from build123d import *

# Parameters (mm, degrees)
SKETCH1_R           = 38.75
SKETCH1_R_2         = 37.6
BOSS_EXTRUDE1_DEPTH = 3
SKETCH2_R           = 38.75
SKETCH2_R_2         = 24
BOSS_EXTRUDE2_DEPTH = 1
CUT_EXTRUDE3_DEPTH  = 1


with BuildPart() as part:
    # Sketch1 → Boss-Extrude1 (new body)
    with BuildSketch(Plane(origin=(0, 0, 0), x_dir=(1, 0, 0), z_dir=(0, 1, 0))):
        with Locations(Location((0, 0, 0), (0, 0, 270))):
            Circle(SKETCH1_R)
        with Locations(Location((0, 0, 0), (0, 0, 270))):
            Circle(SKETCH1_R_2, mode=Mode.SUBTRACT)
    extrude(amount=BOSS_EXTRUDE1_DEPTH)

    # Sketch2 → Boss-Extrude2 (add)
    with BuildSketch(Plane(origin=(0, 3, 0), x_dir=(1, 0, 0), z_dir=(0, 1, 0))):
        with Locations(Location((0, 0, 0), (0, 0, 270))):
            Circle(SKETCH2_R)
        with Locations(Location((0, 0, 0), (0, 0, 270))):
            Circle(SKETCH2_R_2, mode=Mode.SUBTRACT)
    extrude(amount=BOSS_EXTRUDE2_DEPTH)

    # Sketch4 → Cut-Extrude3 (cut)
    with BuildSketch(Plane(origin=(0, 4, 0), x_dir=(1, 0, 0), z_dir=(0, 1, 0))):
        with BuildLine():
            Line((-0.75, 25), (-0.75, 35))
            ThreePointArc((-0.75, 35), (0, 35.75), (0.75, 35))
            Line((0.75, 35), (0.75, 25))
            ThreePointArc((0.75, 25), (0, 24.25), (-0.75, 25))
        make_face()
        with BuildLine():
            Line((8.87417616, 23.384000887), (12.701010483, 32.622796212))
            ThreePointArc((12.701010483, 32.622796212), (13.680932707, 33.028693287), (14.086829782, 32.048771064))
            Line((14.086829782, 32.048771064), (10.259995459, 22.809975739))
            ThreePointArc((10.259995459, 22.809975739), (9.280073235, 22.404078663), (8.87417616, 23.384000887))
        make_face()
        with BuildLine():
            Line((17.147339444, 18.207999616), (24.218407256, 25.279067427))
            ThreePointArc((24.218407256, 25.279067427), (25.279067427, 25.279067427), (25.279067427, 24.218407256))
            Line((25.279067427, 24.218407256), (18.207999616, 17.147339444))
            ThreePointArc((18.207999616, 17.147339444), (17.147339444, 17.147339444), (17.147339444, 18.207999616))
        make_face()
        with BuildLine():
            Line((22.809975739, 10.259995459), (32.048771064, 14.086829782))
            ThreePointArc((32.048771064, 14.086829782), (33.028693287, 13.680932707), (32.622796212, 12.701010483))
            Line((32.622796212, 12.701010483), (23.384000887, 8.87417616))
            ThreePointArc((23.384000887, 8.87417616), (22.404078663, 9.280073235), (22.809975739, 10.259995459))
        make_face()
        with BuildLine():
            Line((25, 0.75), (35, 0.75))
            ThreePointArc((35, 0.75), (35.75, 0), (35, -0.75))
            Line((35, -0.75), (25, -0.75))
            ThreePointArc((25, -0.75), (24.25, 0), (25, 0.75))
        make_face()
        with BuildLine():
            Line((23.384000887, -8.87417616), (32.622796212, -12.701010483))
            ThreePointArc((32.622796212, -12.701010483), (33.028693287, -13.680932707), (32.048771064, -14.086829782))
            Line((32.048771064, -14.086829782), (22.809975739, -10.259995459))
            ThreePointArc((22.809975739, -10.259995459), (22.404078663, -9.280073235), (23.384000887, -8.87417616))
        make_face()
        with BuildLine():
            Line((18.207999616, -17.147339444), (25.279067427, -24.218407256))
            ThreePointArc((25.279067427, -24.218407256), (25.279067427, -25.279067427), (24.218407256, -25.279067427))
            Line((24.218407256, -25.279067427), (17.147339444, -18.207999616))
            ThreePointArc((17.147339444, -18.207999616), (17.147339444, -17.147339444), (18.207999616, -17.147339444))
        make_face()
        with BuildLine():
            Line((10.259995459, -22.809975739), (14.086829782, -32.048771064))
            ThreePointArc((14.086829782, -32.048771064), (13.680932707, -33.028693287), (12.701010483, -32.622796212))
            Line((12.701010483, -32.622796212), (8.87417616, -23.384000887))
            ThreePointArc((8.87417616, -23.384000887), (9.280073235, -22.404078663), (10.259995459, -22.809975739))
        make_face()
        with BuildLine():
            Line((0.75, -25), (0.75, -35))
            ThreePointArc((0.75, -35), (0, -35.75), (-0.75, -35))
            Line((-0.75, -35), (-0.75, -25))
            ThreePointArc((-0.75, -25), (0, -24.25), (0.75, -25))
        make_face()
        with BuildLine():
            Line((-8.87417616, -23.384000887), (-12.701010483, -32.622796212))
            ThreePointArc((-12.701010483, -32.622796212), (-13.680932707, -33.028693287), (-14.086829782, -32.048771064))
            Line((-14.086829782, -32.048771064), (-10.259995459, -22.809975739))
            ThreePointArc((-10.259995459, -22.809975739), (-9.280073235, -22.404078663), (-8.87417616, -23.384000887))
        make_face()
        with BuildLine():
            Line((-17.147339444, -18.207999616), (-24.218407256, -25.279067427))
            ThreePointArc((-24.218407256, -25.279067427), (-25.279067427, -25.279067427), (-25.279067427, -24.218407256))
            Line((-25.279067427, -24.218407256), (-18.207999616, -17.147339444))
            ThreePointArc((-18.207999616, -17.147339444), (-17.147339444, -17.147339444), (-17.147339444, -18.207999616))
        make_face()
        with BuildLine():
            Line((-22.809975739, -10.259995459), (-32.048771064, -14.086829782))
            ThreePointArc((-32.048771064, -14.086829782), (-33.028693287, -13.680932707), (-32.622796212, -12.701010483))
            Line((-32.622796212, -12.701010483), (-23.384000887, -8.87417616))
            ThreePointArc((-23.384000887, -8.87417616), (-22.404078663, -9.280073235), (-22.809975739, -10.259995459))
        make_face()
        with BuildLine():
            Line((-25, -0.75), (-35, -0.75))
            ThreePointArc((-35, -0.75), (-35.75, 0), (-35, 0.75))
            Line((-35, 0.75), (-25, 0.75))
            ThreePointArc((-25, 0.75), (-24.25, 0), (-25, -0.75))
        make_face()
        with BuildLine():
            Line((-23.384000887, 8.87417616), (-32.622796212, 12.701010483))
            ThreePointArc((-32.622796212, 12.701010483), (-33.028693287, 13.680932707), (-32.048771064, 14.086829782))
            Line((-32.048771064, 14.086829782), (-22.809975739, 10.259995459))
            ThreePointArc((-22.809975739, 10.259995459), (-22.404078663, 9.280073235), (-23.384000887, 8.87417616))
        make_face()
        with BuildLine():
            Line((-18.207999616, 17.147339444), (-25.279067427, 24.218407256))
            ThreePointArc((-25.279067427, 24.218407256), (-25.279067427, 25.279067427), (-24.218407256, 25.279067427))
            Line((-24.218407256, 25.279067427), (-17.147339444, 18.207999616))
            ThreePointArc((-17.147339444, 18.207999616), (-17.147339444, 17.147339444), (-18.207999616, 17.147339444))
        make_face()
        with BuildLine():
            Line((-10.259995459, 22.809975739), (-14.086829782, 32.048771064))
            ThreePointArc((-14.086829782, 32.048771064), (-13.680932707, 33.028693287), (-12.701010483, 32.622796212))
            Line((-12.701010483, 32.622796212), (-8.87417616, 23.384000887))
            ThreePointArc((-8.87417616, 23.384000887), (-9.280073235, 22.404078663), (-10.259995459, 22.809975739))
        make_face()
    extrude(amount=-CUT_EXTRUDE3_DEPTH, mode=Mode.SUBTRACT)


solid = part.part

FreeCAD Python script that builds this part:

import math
import FreeCAD as App
import Part
import Sketcher

V = App.Vector
Q = App.Units.Quantity

doc = App.newDocument("Part")
body = doc.addObject("PartDesign::Body", "Body")

sketch1 = body.newObject("Sketcher::SketchObject", "Sketch")
sketch1.AttachmentSupport = (doc.getObject("XZ_Plane"), [""])
sketch1.MapMode = "FlatFace"
sketch1.addGeometry(Part.Circle(V(0, 0, 0), V(0, 0, 1), 38.75), False)
sketch1.addGeometry(Part.Circle(V(0, 0, 0), V(0, 0, 1), 37.6), False)
sketch1.addConstraint(Sketcher.Constraint("Coincident", 0, 3, -1, 1))
sketch1.addConstraint(Sketcher.Constraint("Coincident", 1, 3, -1, 1))
sketch1.addConstraint(Sketcher.Constraint("Diameter", 0, 77.5))
sketch1.addConstraint(Sketcher.Constraint("Diameter", 1, 75.2))
pad1 = body.newObject("PartDesign::Pad", "Pad")
pad1.Profile = sketch1
pad1.Length = 3
pad1.Reversed = True

sketch2 = body.newObject("Sketcher::SketchObject", "Sketch001")
sketch2.AttachmentSupport = (doc.getObject("XZ_Plane"), [""])
sketch2.MapMode = "FlatFace"
sketch2.AttachmentOffset = App.Placement(V(0, 0, -3), App.Rotation())
sketch2.addGeometry(Part.Circle(V(0, 0, 0), V(0, 0, 1), 38.75), False)
sketch2.addGeometry(Part.Circle(V(0, 0, 0), V(0, 0, 1), 24), False)
sketch2.addConstraint(Sketcher.Constraint("Coincident", 0, 3, -1, 1))
sketch2.addConstraint(Sketcher.Constraint("Coincident", 1, 3, -1, 1))
sketch2.addConstraint(Sketcher.Constraint("Diameter", 1, 48.0))
sketch2.addConstraint(Sketcher.Constraint("Diameter", 0, 77.5))
pad2 = body.newObject("PartDesign::Pad", "Pad001")
pad2.Profile = sketch2
pad2.Length = 1
pad2.Reversed = True

sketch3 = body.newObject("Sketcher::SketchObject", "Sketch002")
sketch3.AttachmentSupport = (doc.getObject("XZ_Plane"), [""])
sketch3.MapMode = "FlatFace"
sketch3.AttachmentOffset = App.Placement(V(0, 0, -4), App.Rotation())
sketch3.addGeometry(Part.LineSegment(V(-0.75, -35, 0), V(-0.75, -25, 0)), False)
sketch3.addGeometry(Part.ArcOfCircle(Part.Circle(V(0, -25, 0), V(0, 0, 1), 0.75), math.radians(0), math.radians(180)), False)
sketch3.addGeometry(Part.LineSegment(V(0.75, -25, 0), V(0.75, -35, 0)), False)
sketch3.addGeometry(Part.ArcOfCircle(Part.Circle(V(0, -35, 0), V(0, 0, 1), 0.75), math.radians(180), math.radians(360)), False)
sketch3.addGeometry(Part.LineSegment(V(12.70101, -32.622796, 0), V(8.874176, -23.384001, 0)), False)
sketch3.addGeometry(Part.ArcOfCircle(Part.Circle(V(9.567086, -23.096988, 0), V(0, 0, 1), 0.75), math.radians(22.5), math.radians(202.5)), False)
sketch3.addGeometry(Part.LineSegment(V(10.259995, -22.809976, 0), V(14.08683, -32.048771, 0)), False)
sketch3.addGeometry(Part.ArcOfCircle(Part.Circle(V(13.39392, -32.335784, 0), V(0, 0, 1), 0.75), math.radians(-157.5), math.radians(22.5)), False)
sketch3.addGeometry(Part.LineSegment(V(24.218407, -25.279067, 0), V(17.147339, -18.208, 0)), False)
sketch3.addGeometry(Part.ArcOfCircle(Part.Circle(V(17.67767, -17.67767, 0), V(0, 0, 1), 0.75), math.radians(45), math.radians(225)), False)
sketch3.addGeometry(Part.LineSegment(V(18.208, -17.147339, 0), V(25.279067, -24.218407, 0)), False)
sketch3.addGeometry(Part.ArcOfCircle(Part.Circle(V(24.748737, -24.748737, 0), V(0, 0, 1), 0.75), math.radians(-135), math.radians(45)), False)
sketch3.addGeometry(Part.LineSegment(V(32.048771, -14.08683, 0), V(22.809976, -10.259995, 0)), False)
sketch3.addGeometry(Part.ArcOfCircle(Part.Circle(V(23.096988, -9.567086, 0), V(0, 0, 1), 0.75), math.radians(67.5), math.radians(247.5)), False)
sketch3.addGeometry(Part.LineSegment(V(23.384001, -8.874176, 0), V(32.622796, -12.70101, 0)), False)
sketch3.addGeometry(Part.ArcOfCircle(Part.Circle(V(32.335784, -13.39392, 0), V(0, 0, 1), 0.75), math.radians(-112.5), math.radians(67.5)), False)
sketch3.addGeometry(Part.LineSegment(V(35, -0.75, 0), V(25, -0.75, 0)), False)
sketch3.addGeometry(Part.ArcOfCircle(Part.Circle(V(25, 0, 0), V(0, 0, 1), 0.75), math.radians(90), math.radians(270)), False)
sketch3.addGeometry(Part.LineSegment(V(25, 0.75, 0), V(35, 0.75, 0)), False)
sketch3.addGeometry(Part.ArcOfCircle(Part.Circle(V(35, 0, 0), V(0, 0, 1), 0.75), math.radians(-90), math.radians(90)), False)
sketch3.addGeometry(Part.LineSegment(V(32.622796, 12.70101, 0), V(23.384001, 8.874176, 0)), False)
sketch3.addGeometry(Part.ArcOfCircle(Part.Circle(V(23.096988, 9.567086, 0), V(0, 0, 1), 0.75), math.radians(112.5), math.radians(292.5)), False)
sketch3.addGeometry(Part.LineSegment(V(22.809976, 10.259995, 0), V(32.048771, 14.08683, 0)), False)
sketch3.addGeometry(Part.ArcOfCircle(Part.Circle(V(32.335784, 13.39392, 0), V(0, 0, 1), 0.75), math.radians(-67.5), math.radians(112.5)), False)
sketch3.addGeometry(Part.LineSegment(V(25.279067, 24.218407, 0), V(18.208, 17.147339, 0)), False)
sketch3.addGeometry(Part.ArcOfCircle(Part.Circle(V(17.67767, 17.67767, 0), V(0, 0, 1), 0.75), math.radians(135), math.radians(315)), False)
sketch3.addGeometry(Part.LineSegment(V(17.147339, 18.208, 0), V(24.218407, 25.279067, 0)), False)
sketch3.addGeometry(Part.ArcOfCircle(Part.Circle(V(24.748737, 24.748737, 0), V(0, 0, 1), 0.75), math.radians(-45), math.radians(135)), False)
sketch3.addGeometry(Part.LineSegment(V(14.08683, 32.048771, 0), V(10.259995, 22.809976, 0)), False)
sketch3.addGeometry(Part.ArcOfCircle(Part.Circle(V(9.567086, 23.096988, 0), V(0, 0, 1), 0.75), math.radians(157.5), math.radians(337.5)), False)
sketch3.addGeometry(Part.LineSegment(V(8.874176, 23.384001, 0), V(12.70101, 32.622796, 0)), False)
sketch3.addGeometry(Part.ArcOfCircle(Part.Circle(V(13.39392, 32.335784, 0), V(0, 0, 1), 0.75), math.radians(-22.5), math.radians(157.5)), False)
sketch3.addGeometry(Part.LineSegment(V(0.75, 35, 0), V(0.75, 25, 0)), False)
sketch3.addGeometry(Part.ArcOfCircle(Part.Circle(V(0, 25, 0), V(0, 0, 1), 0.75), math.radians(180), math.radians(360)), False)
sketch3.addGeometry(Part.LineSegment(V(-0.75, 25, 0), V(-0.75, 35, 0)), False)
sketch3.addGeometry(Part.ArcOfCircle(Part.Circle(V(0, 35, 0), V(0, 0, 1), 0.75), math.radians(0), math.radians(180)), False)
sketch3.addGeometry(Part.LineSegment(V(-12.70101, 32.622796, 0), V(-8.874176, 23.384001, 0)), False)
sketch3.addGeometry(Part.ArcOfCircle(Part.Circle(V(-9.567086, 23.096988, 0), V(0, 0, 1), 0.75), math.radians(-157.5), math.radians(22.5)), False)
sketch3.addGeometry(Part.LineSegment(V(-10.259995, 22.809976, 0), V(-14.08683, 32.048771, 0)), False)
sketch3.addGeometry(Part.ArcOfCircle(Part.Circle(V(-13.39392, 32.335784, 0), V(0, 0, 1), 0.75), math.radians(22.5), math.radians(202.5)), False)
sketch3.addGeometry(Part.LineSegment(V(-24.218407, 25.279067, 0), V(-17.147339, 18.208, 0)), False)
sketch3.addGeometry(Part.ArcOfCircle(Part.Circle(V(-17.67767, 17.67767, 0), V(0, 0, 1), 0.75), math.radians(-135), math.radians(45)), False)
sketch3.addGeometry(Part.LineSegment(V(-18.208, 17.147339, 0), V(-25.279067, 24.218407, 0)), False)
sketch3.addGeometry(Part.ArcOfCircle(Part.Circle(V(-24.748737, 24.748737, 0), V(0, 0, 1), 0.75), math.radians(45), math.radians(225)), False)
sketch3.addGeometry(Part.LineSegment(V(-32.048771, 14.08683, 0), V(-22.809976, 10.259995, 0)), False)
sketch3.addGeometry(Part.ArcOfCircle(Part.Circle(V(-23.096988, 9.567086, 0), V(0, 0, 1), 0.75), math.radians(-112.5), math.radians(67.5)), False)
sketch3.addGeometry(Part.LineSegment(V(-23.384001, 8.874176, 0), V(-32.622796, 12.70101, 0)), False)
sketch3.addGeometry(Part.ArcOfCircle(Part.Circle(V(-32.335784, 13.39392, 0), V(0, 0, 1), 0.75), math.radians(67.5), math.radians(247.5)), False)
sketch3.addGeometry(Part.LineSegment(V(-35, 0.75, 0), V(-25, 0.75, 0)), False)
sketch3.addGeometry(Part.ArcOfCircle(Part.Circle(V(-25, 0, 0), V(0, 0, 1), 0.75), math.radians(-90), math.radians(90)), False)
sketch3.addGeometry(Part.LineSegment(V(-25, -0.75, 0), V(-35, -0.75, 0)), False)
sketch3.addGeometry(Part.ArcOfCircle(Part.Circle(V(-35, 0, 0), V(0, 0, 1), 0.75), math.radians(90), math.radians(270)), False)
sketch3.addGeometry(Part.LineSegment(V(-32.622796, -12.70101, 0), V(-23.384001, -8.874176, 0)), False)
sketch3.addGeometry(Part.ArcOfCircle(Part.Circle(V(-23.096988, -9.567086, 0), V(0, 0, 1), 0.75), math.radians(-67.5), math.radians(112.5)), False)
sketch3.addGeometry(Part.LineSegment(V(-22.809976, -10.259995, 0), V(-32.048771, -14.08683, 0)), False)
sketch3.addGeometry(Part.ArcOfCircle(Part.Circle(V(-32.335784, -13.39392, 0), V(0, 0, 1), 0.75), math.radians(112.5), math.radians(292.5)), False)
sketch3.addGeometry(Part.LineSegment(V(-25.279067, -24.218407, 0), V(-18.208, -17.147339, 0)), False)
sketch3.addGeometry(Part.ArcOfCircle(Part.Circle(V(-17.67767, -17.67767, 0), V(0, 0, 1), 0.75), math.radians(-45), math.radians(135)), False)
sketch3.addGeometry(Part.LineSegment(V(-17.147339, -18.208, 0), V(-24.218407, -25.279067, 0)), False)
sketch3.addGeometry(Part.ArcOfCircle(Part.Circle(V(-24.748737, -24.748737, 0), V(0, 0, 1), 0.75), math.radians(135), math.radians(315)), False)
sketch3.addGeometry(Part.LineSegment(V(-14.08683, -32.048771, 0), V(-10.259995, -22.809976, 0)), False)
sketch3.addGeometry(Part.ArcOfCircle(Part.Circle(V(-9.567086, -23.096988, 0), V(0, 0, 1), 0.75), math.radians(-22.5), math.radians(157.5)), False)
sketch3.addGeometry(Part.LineSegment(V(-8.874176, -23.384001, 0), V(-12.70101, -32.622796, 0)), False)
sketch3.addGeometry(Part.ArcOfCircle(Part.Circle(V(-13.39392, -32.335784, 0), V(0, 0, 1), 0.75), math.radians(157.5), math.radians(337.5)), False)
sketch3.addConstraint(Sketcher.Constraint("Tangent", 0, 2, 1, 2))
sketch3.addConstraint(Sketcher.Constraint("Tangent", 1, 1, 2, 1))
sketch3.addConstraint(Sketcher.Constraint("Tangent", 2, 2, 3, 2))
sketch3.addConstraint(Sketcher.Constraint("Tangent", 3, 1, 0, 1))
sketch3.addConstraint(Sketcher.Constraint("Tangent", 4, 2, 5, 2))
sketch3.addConstraint(Sketcher.Constraint("Tangent", 5, 1, 6, 1))
sketch3.addConstraint(Sketcher.Constraint("Tangent", 6, 2, 7, 2))
sketch3.addConstraint(Sketcher.Constraint("Tangent", 7, 1, 4, 1))
sketch3.addConstraint(Sketcher.Constraint("Tangent", 8, 2, 9, 2))
sketch3.addConstraint(Sketcher.Constraint("Tangent", 9, 1, 10, 1))
sketch3.addConstraint(Sketcher.Constraint("Tangent", 10, 2, 11, 2))
sketch3.addConstraint(Sketcher.Constraint("Tangent", 11, 1, 8, 1))
sketch3.addConstraint(Sketcher.Constraint("Tangent", 12, 2, 13, 2))
sketch3.addConstraint(Sketcher.Constraint("Tangent", 13, 1, 14, 1))
sketch3.addConstraint(Sketcher.Constraint("Tangent", 14, 2, 15, 2))
sketch3.addConstraint(Sketcher.Constraint("Tangent", 15, 1, 12, 1))
sketch3.addConstraint(Sketcher.Constraint("Tangent", 16, 2, 17, 2))
sketch3.addConstraint(Sketcher.Constraint("Tangent", 17, 1, 18, 1))
sketch3.addConstraint(Sketcher.Constraint("Tangent", 18, 2, 19, 2))
sketch3.addConstraint(Sketcher.Constraint("Tangent", 19, 1, 16, 1))
sketch3.addConstraint(Sketcher.Constraint("Tangent", 20, 2, 21, 2))
sketch3.addConstraint(Sketcher.Constraint("Tangent", 21, 1, 22, 1))
sketch3.addConstraint(Sketcher.Constraint("Tangent", 22, 2, 23, 2))
sketch3.addConstraint(Sketcher.Constraint("Tangent", 23, 1, 20, 1))
sketch3.addConstraint(Sketcher.Constraint("Tangent", 24, 2, 25, 2))
sketch3.addConstraint(Sketcher.Constraint("Tangent", 25, 1, 26, 1))
sketch3.addConstraint(Sketcher.Constraint("Tangent", 26, 2, 27, 2))
sketch3.addConstraint(Sketcher.Constraint("Tangent", 27, 1, 24, 1))
sketch3.addConstraint(Sketcher.Constraint("Tangent", 28, 2, 29, 2))
sketch3.addConstraint(Sketcher.Constraint("Tangent", 29, 1, 30, 1))
sketch3.addConstraint(Sketcher.Constraint("Tangent", 30, 2, 31, 2))
sketch3.addConstraint(Sketcher.Constraint("Tangent", 31, 1, 28, 1))
sketch3.addConstraint(Sketcher.Constraint("Tangent", 32, 2, 33, 2))
sketch3.addConstraint(Sketcher.Constraint("Tangent", 33, 1, 34, 1))
sketch3.addConstraint(Sketcher.Constraint("Tangent", 34, 2, 35, 2))
sketch3.addConstraint(Sketcher.Constraint("Tangent", 35, 1, 32, 1))
sketch3.addConstraint(Sketcher.Constraint("Tangent", 36, 2, 37, 2))
sketch3.addConstraint(Sketcher.Constraint("Tangent", 37, 1, 38, 1))
sketch3.addConstraint(Sketcher.Constraint("Tangent", 38, 2, 39, 2))
sketch3.addConstraint(Sketcher.Constraint("Tangent", 39, 1, 36, 1))
sketch3.addConstraint(Sketcher.Constraint("Tangent", 40, 2, 41, 2))
sketch3.addConstraint(Sketcher.Constraint("Tangent", 41, 1, 42, 1))
sketch3.addConstraint(Sketcher.Constraint("Tangent", 42, 2, 43, 2))
sketch3.addConstraint(Sketcher.Constraint("Tangent", 43, 1, 40, 1))
sketch3.addConstraint(Sketcher.Constraint("Tangent", 44, 2, 45, 2))
sketch3.addConstraint(Sketcher.Constraint("Tangent", 45, 1, 46, 1))
sketch3.addConstraint(Sketcher.Constraint("Tangent", 46, 2, 47, 2))
sketch3.addConstraint(Sketcher.Constraint("Tangent", 47, 1, 44, 1))
sketch3.addConstraint(Sketcher.Constraint("Tangent", 48, 2, 49, 2))
sketch3.addConstraint(Sketcher.Constraint("Tangent", 49, 1, 50, 1))
sketch3.addConstraint(Sketcher.Constraint("Tangent", 50, 2, 51, 2))
sketch3.addConstraint(Sketcher.Constraint("Tangent", 51, 1, 48, 1))
sketch3.addConstraint(Sketcher.Constraint("Tangent", 52, 2, 53, 2))
sketch3.addConstraint(Sketcher.Constraint("Tangent", 53, 1, 54, 1))
sketch3.addConstraint(Sketcher.Constraint("Tangent", 54, 2, 55, 2))
sketch3.addConstraint(Sketcher.Constraint("Tangent", 55, 1, 52, 1))
sketch3.addConstraint(Sketcher.Constraint("Tangent", 56, 2, 57, 2))
sketch3.addConstraint(Sketcher.Constraint("Tangent", 57, 1, 58, 1))
sketch3.addConstraint(Sketcher.Constraint("Tangent", 58, 2, 59, 2))
sketch3.addConstraint(Sketcher.Constraint("Tangent", 59, 1, 56, 1))
sketch3.addConstraint(Sketcher.Constraint("Tangent", 60, 2, 61, 2))
sketch3.addConstraint(Sketcher.Constraint("Tangent", 61, 1, 62, 1))
sketch3.addConstraint(Sketcher.Constraint("Tangent", 62, 2, 63, 2))
sketch3.addConstraint(Sketcher.Constraint("Tangent", 63, 1, 60, 1))
sketch3.addConstraint(Sketcher.Constraint("Vertical", 0))
sketch3.addConstraint(Sketcher.Constraint("Vertical", 2))
sketch3.addConstraint(Sketcher.Constraint("Horizontal", 16))
sketch3.addConstraint(Sketcher.Constraint("Horizontal", 18))
sketch3.addConstraint(Sketcher.Constraint("Vertical", 32))
sketch3.addConstraint(Sketcher.Constraint("Vertical", 34))
sketch3.addConstraint(Sketcher.Constraint("Horizontal", 48))
sketch3.addConstraint(Sketcher.Constraint("Horizontal", 50))
sketch3.addConstraint(Sketcher.Constraint("Equal", 3, 5))
sketch3.addConstraint(Sketcher.Constraint("Equal", 5, 7))
sketch3.addConstraint(Sketcher.Constraint("Equal", 7, 9))
sketch3.addConstraint(Sketcher.Constraint("Equal", 9, 11))
sketch3.addConstraint(Sketcher.Constraint("Equal", 11, 13))
sketch3.addConstraint(Sketcher.Constraint("Equal", 13, 15))
sketch3.addConstraint(Sketcher.Constraint("Equal", 15, 17))
sketch3.addConstraint(Sketcher.Constraint("Equal", 19, 21))
sketch3.addConstraint(Sketcher.Constraint("Equal", 21, 23))
sketch3.addConstraint(Sketcher.Constraint("Equal", 23, 25))
sketch3.addConstraint(Sketcher.Constraint("Equal", 25, 27))
sketch3.addConstraint(Sketcher.Constraint("Equal", 27, 29))
sketch3.addConstraint(Sketcher.Constraint("Equal", 29, 31))
sketch3.addConstraint(Sketcher.Constraint("Equal", 31, 33))
sketch3.addConstraint(Sketcher.Constraint("Equal", 35, 37))
sketch3.addConstraint(Sketcher.Constraint("Equal", 37, 39))
sketch3.addConstraint(Sketcher.Constraint("Equal", 39, 41))
sketch3.addConstraint(Sketcher.Constraint("Equal", 41, 43))
sketch3.addConstraint(Sketcher.Constraint("Equal", 43, 45))
sketch3.addConstraint(Sketcher.Constraint("Equal", 45, 47))
sketch3.addConstraint(Sketcher.Constraint("Equal", 47, 49))
sketch3.addConstraint(Sketcher.Constraint("Equal", 51, 53))
sketch3.addConstraint(Sketcher.Constraint("Equal", 53, 55))
sketch3.addConstraint(Sketcher.Constraint("Equal", 55, 57))
sketch3.addConstraint(Sketcher.Constraint("Equal", 57, 59))
sketch3.addConstraint(Sketcher.Constraint("Equal", 59, 61))
sketch3.addConstraint(Sketcher.Constraint("Equal", 61, 63))
sketch3.addConstraint(Sketcher.Constraint("Symmetric", 1, 3, 33, 3, -1, 1))
sketch3.addConstraint(Sketcher.Constraint("Symmetric", 5, 3, 37, 3, -1, 1))
sketch3.addConstraint(Sketcher.Constraint("Symmetric", 7, 3, 39, 3, -1, 1))
sketch3.addConstraint(Sketcher.Constraint("Symmetric", 9, 3, 41, 3, -1, 1))
sketch3.addConstraint(Sketcher.Constraint("Symmetric", 11, 3, 43, 3, -1, 1))
sketch3.addConstraint(Sketcher.Constraint("Symmetric", 13, 3, 45, 3, -1, 1))
sketch3.addConstraint(Sketcher.Constraint("Symmetric", 15, 3, 47, 3, -1, 1))
sketch3.addConstraint(Sketcher.Constraint("Symmetric", 17, 3, 49, 3, -1, 1))
sketch3.addConstraint(Sketcher.Constraint("Symmetric", 21, 3, 53, 3, -1, 1))
sketch3.addConstraint(Sketcher.Constraint("Symmetric", 23, 3, 55, 3, -1, 1))
sketch3.addConstraint(Sketcher.Constraint("Symmetric", 25, 3, 57, 3, -1, 1))
sketch3.addConstraint(Sketcher.Constraint("Symmetric", 27, 3, 59, 3, -1, 1))
sketch3.addConstraint(Sketcher.Constraint("Symmetric", 29, 3, 61, 3, -1, 1))
sketch3.addConstraint(Sketcher.Constraint("Symmetric", 31, 3, 63, 3, -1, 1))
sketch3.addConstraint(Sketcher.Constraint("Symmetric", 29, 3, 37, 3, -2))
sketch3.addConstraint(Sketcher.Constraint("Symmetric", 31, 3, 39, 3, -2))
sketch3.addConstraint(Sketcher.Constraint("Symmetric", 25, 3, 41, 3, -2))
sketch3.addConstraint(Sketcher.Constraint("Symmetric", 27, 3, 43, 3, -2))
sketch3.addConstraint(Sketcher.Constraint("Symmetric", 21, 3, 45, 3, -2))
sketch3.addConstraint(Sketcher.Constraint("Symmetric", 23, 3, 47, 3, -2))
sketch3.addConstraint(Sketcher.Constraint("Symmetric", 19, 3, 51, 3, -2))
sketch3.addConstraint(Sketcher.Constraint("Symmetric", 3, 3, 35, 3, -1))
sketch3.addConstraint(Sketcher.Constraint("Perpendicular", 6, 20))
sketch3.addConstraint(Sketcher.Constraint("Perpendicular", 10, 24))
sketch3.addConstraint(Sketcher.Constraint("Equal", 50, 0))
sketch3.addConstraint(Sketcher.Constraint("Equal", 6, 8))
sketch3.addConstraint(Sketcher.Constraint("Equal", 10, 12))
sketch3.addConstraint(Sketcher.Constraint("DistanceX", 16, 2, 16, 1, 10.0))
sketch3.addConstraint(Sketcher.Constraint("Radius", 1, 0.75))
sketch3.addConstraint(Sketcher.Constraint("Distance", 4, 10.0))
sketch3.addConstraint(Sketcher.Constraint("DistanceY", 1, 3, -1, 1, 25.0))
sketch3.addConstraint(Sketcher.Constraint("DistanceX", -1, 1, 17, 3, 25.0))
sketch3.addConstraint(Sketcher.Constraint("Angle", 4, Q("112.5 deg")))
sketch3.addConstraint(Sketcher.Constraint("DistanceY", 4, 2, -1, 1, 23.384001))
sketch3.addConstraint(Sketcher.Constraint("DistanceY", 8, 2, -1, 1, 18.208))
sketch3.addConstraint(Sketcher.Constraint("DistanceX", -1, 1, 9, 1, 18.208))
sketch3.addConstraint(Sketcher.Constraint("DistanceX", -1, 1, 13, 1, 23.384001))
sketch3.addConstraint(Sketcher.Constraint("DistanceX", -1, 1, 7, 3, 13.39392))
sketch3.addConstraint(Sketcher.Constraint("DistanceY", 15, 3, -1, 1, 13.39392))
pocket1 = body.newObject("PartDesign::Pocket", "Pocket")
pocket1.Profile = sketch3
pocket1.Length = 1
pocket1.Reversed = True

doc.recompute()
